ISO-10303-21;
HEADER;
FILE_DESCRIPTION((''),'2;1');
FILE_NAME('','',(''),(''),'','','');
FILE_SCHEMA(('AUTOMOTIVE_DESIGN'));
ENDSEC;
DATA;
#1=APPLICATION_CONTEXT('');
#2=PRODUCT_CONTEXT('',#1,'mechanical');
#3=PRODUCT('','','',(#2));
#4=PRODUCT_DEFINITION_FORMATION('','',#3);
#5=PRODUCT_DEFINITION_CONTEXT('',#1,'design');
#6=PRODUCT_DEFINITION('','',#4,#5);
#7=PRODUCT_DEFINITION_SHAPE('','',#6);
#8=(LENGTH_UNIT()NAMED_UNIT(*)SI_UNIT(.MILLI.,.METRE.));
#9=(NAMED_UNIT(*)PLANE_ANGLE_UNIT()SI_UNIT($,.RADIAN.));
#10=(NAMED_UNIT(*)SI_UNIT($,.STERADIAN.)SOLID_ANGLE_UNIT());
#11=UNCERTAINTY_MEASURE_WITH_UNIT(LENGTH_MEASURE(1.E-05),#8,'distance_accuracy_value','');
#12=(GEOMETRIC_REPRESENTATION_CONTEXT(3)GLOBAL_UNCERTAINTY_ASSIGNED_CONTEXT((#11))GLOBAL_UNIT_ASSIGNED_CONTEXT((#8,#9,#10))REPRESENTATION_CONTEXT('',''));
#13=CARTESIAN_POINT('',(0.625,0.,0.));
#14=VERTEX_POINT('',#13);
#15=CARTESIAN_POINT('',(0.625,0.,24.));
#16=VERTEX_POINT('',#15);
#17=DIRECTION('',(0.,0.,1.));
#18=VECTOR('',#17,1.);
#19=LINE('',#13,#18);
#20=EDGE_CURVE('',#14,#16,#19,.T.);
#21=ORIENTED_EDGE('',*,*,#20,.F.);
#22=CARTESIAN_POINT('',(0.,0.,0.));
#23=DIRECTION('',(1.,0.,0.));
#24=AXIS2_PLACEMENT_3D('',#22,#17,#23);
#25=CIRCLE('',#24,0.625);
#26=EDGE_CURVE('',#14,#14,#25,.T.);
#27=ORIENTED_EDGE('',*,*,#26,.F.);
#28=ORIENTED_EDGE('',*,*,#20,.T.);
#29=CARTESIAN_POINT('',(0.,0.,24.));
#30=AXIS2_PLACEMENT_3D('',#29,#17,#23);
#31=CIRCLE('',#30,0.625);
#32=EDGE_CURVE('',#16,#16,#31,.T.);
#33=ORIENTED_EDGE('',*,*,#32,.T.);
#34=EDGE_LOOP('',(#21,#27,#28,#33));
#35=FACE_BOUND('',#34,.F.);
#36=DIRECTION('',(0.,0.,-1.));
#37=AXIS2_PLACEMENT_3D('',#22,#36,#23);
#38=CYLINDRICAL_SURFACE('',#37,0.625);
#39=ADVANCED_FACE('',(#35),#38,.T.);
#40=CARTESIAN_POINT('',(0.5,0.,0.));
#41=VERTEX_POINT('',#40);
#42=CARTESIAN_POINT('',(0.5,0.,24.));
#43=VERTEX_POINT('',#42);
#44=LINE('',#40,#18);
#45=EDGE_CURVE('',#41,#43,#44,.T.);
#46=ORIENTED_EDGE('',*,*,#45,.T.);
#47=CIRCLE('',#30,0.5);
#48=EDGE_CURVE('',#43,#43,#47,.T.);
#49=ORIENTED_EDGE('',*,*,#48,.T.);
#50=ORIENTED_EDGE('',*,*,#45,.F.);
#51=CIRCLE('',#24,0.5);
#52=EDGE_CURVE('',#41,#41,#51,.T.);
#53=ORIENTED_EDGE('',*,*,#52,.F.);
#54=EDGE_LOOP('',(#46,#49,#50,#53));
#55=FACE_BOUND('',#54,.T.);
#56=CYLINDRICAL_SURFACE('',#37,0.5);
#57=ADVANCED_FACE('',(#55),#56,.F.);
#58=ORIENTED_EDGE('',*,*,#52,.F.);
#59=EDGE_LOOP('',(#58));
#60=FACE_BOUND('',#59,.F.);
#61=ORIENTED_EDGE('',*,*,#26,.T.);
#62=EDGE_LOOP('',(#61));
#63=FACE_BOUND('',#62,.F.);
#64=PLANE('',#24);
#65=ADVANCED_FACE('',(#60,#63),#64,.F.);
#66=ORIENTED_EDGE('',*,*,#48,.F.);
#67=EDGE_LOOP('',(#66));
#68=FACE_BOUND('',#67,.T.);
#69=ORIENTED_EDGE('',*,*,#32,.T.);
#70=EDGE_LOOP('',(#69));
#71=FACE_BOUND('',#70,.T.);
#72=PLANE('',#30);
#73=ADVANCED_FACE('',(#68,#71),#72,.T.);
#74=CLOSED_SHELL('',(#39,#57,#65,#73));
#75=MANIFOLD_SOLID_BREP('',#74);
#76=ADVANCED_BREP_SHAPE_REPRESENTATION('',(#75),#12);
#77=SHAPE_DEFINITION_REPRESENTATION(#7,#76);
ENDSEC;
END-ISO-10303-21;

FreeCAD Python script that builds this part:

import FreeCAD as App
import Part
import Sketcher

V = App.Vector

doc = App.newDocument("Part")
body = doc.addObject("PartDesign::Body", "Body")

sketch1 = doc.addObject("Sketcher::SketchObject", "Sketch")
body.addObject(sketch1)
sketch1.AttachmentSupport = (doc.XY_Plane, [""])
sketch1.MapMode = "FlatFace"
sketch1.addGeometry(Part.Circle(V(0, 0, 0), V(0, 0, 1), 0.5), False)
sketch1.addConstraint([
    Sketcher.Constraint("Coincident", 0, 3, -1, 1),
    Sketcher.Constraint("Diameter", 0, 1.0),
])
pad1 = doc.addObject("PartDesign::Pad", "Pad")
body.addObject(pad1)
pad1.Profile = sketch1
pad1.Length = 24
body2 = doc.addObject("PartDesign::Body", "Body001")

sketch2 = doc.addObject("Sketcher::SketchObject", "Sketch001")
body2.addObject(sketch2)
sketch2.AttachmentSupport = (doc.getObject("XY_Plane001"), [""])
sketch2.MapMode = "FlatFace"
sketch2.addGeometry(Part.Circle(V(0, 0, 0), V(0, 0, 1), 0.6), False)
sketch2.addConstraint([
    Sketcher.Constraint("Coincident", 0, 3, -1, 1),
    Sketcher.Constraint("Diameter", 0, 1.25),
])
pad2 = doc.addObject("PartDesign::Pad", "Pad001")
body2.addObject(pad2)
pad2.Profile = sketch2
pad2.Length = 24
doc.recompute()

boolean = doc.addObject("PartDesign::Boolean", "Boolean")
body2.addObject(boolean)
boolean.Type = "Cut"
boolean.addObjects([body])

doc.recompute()
